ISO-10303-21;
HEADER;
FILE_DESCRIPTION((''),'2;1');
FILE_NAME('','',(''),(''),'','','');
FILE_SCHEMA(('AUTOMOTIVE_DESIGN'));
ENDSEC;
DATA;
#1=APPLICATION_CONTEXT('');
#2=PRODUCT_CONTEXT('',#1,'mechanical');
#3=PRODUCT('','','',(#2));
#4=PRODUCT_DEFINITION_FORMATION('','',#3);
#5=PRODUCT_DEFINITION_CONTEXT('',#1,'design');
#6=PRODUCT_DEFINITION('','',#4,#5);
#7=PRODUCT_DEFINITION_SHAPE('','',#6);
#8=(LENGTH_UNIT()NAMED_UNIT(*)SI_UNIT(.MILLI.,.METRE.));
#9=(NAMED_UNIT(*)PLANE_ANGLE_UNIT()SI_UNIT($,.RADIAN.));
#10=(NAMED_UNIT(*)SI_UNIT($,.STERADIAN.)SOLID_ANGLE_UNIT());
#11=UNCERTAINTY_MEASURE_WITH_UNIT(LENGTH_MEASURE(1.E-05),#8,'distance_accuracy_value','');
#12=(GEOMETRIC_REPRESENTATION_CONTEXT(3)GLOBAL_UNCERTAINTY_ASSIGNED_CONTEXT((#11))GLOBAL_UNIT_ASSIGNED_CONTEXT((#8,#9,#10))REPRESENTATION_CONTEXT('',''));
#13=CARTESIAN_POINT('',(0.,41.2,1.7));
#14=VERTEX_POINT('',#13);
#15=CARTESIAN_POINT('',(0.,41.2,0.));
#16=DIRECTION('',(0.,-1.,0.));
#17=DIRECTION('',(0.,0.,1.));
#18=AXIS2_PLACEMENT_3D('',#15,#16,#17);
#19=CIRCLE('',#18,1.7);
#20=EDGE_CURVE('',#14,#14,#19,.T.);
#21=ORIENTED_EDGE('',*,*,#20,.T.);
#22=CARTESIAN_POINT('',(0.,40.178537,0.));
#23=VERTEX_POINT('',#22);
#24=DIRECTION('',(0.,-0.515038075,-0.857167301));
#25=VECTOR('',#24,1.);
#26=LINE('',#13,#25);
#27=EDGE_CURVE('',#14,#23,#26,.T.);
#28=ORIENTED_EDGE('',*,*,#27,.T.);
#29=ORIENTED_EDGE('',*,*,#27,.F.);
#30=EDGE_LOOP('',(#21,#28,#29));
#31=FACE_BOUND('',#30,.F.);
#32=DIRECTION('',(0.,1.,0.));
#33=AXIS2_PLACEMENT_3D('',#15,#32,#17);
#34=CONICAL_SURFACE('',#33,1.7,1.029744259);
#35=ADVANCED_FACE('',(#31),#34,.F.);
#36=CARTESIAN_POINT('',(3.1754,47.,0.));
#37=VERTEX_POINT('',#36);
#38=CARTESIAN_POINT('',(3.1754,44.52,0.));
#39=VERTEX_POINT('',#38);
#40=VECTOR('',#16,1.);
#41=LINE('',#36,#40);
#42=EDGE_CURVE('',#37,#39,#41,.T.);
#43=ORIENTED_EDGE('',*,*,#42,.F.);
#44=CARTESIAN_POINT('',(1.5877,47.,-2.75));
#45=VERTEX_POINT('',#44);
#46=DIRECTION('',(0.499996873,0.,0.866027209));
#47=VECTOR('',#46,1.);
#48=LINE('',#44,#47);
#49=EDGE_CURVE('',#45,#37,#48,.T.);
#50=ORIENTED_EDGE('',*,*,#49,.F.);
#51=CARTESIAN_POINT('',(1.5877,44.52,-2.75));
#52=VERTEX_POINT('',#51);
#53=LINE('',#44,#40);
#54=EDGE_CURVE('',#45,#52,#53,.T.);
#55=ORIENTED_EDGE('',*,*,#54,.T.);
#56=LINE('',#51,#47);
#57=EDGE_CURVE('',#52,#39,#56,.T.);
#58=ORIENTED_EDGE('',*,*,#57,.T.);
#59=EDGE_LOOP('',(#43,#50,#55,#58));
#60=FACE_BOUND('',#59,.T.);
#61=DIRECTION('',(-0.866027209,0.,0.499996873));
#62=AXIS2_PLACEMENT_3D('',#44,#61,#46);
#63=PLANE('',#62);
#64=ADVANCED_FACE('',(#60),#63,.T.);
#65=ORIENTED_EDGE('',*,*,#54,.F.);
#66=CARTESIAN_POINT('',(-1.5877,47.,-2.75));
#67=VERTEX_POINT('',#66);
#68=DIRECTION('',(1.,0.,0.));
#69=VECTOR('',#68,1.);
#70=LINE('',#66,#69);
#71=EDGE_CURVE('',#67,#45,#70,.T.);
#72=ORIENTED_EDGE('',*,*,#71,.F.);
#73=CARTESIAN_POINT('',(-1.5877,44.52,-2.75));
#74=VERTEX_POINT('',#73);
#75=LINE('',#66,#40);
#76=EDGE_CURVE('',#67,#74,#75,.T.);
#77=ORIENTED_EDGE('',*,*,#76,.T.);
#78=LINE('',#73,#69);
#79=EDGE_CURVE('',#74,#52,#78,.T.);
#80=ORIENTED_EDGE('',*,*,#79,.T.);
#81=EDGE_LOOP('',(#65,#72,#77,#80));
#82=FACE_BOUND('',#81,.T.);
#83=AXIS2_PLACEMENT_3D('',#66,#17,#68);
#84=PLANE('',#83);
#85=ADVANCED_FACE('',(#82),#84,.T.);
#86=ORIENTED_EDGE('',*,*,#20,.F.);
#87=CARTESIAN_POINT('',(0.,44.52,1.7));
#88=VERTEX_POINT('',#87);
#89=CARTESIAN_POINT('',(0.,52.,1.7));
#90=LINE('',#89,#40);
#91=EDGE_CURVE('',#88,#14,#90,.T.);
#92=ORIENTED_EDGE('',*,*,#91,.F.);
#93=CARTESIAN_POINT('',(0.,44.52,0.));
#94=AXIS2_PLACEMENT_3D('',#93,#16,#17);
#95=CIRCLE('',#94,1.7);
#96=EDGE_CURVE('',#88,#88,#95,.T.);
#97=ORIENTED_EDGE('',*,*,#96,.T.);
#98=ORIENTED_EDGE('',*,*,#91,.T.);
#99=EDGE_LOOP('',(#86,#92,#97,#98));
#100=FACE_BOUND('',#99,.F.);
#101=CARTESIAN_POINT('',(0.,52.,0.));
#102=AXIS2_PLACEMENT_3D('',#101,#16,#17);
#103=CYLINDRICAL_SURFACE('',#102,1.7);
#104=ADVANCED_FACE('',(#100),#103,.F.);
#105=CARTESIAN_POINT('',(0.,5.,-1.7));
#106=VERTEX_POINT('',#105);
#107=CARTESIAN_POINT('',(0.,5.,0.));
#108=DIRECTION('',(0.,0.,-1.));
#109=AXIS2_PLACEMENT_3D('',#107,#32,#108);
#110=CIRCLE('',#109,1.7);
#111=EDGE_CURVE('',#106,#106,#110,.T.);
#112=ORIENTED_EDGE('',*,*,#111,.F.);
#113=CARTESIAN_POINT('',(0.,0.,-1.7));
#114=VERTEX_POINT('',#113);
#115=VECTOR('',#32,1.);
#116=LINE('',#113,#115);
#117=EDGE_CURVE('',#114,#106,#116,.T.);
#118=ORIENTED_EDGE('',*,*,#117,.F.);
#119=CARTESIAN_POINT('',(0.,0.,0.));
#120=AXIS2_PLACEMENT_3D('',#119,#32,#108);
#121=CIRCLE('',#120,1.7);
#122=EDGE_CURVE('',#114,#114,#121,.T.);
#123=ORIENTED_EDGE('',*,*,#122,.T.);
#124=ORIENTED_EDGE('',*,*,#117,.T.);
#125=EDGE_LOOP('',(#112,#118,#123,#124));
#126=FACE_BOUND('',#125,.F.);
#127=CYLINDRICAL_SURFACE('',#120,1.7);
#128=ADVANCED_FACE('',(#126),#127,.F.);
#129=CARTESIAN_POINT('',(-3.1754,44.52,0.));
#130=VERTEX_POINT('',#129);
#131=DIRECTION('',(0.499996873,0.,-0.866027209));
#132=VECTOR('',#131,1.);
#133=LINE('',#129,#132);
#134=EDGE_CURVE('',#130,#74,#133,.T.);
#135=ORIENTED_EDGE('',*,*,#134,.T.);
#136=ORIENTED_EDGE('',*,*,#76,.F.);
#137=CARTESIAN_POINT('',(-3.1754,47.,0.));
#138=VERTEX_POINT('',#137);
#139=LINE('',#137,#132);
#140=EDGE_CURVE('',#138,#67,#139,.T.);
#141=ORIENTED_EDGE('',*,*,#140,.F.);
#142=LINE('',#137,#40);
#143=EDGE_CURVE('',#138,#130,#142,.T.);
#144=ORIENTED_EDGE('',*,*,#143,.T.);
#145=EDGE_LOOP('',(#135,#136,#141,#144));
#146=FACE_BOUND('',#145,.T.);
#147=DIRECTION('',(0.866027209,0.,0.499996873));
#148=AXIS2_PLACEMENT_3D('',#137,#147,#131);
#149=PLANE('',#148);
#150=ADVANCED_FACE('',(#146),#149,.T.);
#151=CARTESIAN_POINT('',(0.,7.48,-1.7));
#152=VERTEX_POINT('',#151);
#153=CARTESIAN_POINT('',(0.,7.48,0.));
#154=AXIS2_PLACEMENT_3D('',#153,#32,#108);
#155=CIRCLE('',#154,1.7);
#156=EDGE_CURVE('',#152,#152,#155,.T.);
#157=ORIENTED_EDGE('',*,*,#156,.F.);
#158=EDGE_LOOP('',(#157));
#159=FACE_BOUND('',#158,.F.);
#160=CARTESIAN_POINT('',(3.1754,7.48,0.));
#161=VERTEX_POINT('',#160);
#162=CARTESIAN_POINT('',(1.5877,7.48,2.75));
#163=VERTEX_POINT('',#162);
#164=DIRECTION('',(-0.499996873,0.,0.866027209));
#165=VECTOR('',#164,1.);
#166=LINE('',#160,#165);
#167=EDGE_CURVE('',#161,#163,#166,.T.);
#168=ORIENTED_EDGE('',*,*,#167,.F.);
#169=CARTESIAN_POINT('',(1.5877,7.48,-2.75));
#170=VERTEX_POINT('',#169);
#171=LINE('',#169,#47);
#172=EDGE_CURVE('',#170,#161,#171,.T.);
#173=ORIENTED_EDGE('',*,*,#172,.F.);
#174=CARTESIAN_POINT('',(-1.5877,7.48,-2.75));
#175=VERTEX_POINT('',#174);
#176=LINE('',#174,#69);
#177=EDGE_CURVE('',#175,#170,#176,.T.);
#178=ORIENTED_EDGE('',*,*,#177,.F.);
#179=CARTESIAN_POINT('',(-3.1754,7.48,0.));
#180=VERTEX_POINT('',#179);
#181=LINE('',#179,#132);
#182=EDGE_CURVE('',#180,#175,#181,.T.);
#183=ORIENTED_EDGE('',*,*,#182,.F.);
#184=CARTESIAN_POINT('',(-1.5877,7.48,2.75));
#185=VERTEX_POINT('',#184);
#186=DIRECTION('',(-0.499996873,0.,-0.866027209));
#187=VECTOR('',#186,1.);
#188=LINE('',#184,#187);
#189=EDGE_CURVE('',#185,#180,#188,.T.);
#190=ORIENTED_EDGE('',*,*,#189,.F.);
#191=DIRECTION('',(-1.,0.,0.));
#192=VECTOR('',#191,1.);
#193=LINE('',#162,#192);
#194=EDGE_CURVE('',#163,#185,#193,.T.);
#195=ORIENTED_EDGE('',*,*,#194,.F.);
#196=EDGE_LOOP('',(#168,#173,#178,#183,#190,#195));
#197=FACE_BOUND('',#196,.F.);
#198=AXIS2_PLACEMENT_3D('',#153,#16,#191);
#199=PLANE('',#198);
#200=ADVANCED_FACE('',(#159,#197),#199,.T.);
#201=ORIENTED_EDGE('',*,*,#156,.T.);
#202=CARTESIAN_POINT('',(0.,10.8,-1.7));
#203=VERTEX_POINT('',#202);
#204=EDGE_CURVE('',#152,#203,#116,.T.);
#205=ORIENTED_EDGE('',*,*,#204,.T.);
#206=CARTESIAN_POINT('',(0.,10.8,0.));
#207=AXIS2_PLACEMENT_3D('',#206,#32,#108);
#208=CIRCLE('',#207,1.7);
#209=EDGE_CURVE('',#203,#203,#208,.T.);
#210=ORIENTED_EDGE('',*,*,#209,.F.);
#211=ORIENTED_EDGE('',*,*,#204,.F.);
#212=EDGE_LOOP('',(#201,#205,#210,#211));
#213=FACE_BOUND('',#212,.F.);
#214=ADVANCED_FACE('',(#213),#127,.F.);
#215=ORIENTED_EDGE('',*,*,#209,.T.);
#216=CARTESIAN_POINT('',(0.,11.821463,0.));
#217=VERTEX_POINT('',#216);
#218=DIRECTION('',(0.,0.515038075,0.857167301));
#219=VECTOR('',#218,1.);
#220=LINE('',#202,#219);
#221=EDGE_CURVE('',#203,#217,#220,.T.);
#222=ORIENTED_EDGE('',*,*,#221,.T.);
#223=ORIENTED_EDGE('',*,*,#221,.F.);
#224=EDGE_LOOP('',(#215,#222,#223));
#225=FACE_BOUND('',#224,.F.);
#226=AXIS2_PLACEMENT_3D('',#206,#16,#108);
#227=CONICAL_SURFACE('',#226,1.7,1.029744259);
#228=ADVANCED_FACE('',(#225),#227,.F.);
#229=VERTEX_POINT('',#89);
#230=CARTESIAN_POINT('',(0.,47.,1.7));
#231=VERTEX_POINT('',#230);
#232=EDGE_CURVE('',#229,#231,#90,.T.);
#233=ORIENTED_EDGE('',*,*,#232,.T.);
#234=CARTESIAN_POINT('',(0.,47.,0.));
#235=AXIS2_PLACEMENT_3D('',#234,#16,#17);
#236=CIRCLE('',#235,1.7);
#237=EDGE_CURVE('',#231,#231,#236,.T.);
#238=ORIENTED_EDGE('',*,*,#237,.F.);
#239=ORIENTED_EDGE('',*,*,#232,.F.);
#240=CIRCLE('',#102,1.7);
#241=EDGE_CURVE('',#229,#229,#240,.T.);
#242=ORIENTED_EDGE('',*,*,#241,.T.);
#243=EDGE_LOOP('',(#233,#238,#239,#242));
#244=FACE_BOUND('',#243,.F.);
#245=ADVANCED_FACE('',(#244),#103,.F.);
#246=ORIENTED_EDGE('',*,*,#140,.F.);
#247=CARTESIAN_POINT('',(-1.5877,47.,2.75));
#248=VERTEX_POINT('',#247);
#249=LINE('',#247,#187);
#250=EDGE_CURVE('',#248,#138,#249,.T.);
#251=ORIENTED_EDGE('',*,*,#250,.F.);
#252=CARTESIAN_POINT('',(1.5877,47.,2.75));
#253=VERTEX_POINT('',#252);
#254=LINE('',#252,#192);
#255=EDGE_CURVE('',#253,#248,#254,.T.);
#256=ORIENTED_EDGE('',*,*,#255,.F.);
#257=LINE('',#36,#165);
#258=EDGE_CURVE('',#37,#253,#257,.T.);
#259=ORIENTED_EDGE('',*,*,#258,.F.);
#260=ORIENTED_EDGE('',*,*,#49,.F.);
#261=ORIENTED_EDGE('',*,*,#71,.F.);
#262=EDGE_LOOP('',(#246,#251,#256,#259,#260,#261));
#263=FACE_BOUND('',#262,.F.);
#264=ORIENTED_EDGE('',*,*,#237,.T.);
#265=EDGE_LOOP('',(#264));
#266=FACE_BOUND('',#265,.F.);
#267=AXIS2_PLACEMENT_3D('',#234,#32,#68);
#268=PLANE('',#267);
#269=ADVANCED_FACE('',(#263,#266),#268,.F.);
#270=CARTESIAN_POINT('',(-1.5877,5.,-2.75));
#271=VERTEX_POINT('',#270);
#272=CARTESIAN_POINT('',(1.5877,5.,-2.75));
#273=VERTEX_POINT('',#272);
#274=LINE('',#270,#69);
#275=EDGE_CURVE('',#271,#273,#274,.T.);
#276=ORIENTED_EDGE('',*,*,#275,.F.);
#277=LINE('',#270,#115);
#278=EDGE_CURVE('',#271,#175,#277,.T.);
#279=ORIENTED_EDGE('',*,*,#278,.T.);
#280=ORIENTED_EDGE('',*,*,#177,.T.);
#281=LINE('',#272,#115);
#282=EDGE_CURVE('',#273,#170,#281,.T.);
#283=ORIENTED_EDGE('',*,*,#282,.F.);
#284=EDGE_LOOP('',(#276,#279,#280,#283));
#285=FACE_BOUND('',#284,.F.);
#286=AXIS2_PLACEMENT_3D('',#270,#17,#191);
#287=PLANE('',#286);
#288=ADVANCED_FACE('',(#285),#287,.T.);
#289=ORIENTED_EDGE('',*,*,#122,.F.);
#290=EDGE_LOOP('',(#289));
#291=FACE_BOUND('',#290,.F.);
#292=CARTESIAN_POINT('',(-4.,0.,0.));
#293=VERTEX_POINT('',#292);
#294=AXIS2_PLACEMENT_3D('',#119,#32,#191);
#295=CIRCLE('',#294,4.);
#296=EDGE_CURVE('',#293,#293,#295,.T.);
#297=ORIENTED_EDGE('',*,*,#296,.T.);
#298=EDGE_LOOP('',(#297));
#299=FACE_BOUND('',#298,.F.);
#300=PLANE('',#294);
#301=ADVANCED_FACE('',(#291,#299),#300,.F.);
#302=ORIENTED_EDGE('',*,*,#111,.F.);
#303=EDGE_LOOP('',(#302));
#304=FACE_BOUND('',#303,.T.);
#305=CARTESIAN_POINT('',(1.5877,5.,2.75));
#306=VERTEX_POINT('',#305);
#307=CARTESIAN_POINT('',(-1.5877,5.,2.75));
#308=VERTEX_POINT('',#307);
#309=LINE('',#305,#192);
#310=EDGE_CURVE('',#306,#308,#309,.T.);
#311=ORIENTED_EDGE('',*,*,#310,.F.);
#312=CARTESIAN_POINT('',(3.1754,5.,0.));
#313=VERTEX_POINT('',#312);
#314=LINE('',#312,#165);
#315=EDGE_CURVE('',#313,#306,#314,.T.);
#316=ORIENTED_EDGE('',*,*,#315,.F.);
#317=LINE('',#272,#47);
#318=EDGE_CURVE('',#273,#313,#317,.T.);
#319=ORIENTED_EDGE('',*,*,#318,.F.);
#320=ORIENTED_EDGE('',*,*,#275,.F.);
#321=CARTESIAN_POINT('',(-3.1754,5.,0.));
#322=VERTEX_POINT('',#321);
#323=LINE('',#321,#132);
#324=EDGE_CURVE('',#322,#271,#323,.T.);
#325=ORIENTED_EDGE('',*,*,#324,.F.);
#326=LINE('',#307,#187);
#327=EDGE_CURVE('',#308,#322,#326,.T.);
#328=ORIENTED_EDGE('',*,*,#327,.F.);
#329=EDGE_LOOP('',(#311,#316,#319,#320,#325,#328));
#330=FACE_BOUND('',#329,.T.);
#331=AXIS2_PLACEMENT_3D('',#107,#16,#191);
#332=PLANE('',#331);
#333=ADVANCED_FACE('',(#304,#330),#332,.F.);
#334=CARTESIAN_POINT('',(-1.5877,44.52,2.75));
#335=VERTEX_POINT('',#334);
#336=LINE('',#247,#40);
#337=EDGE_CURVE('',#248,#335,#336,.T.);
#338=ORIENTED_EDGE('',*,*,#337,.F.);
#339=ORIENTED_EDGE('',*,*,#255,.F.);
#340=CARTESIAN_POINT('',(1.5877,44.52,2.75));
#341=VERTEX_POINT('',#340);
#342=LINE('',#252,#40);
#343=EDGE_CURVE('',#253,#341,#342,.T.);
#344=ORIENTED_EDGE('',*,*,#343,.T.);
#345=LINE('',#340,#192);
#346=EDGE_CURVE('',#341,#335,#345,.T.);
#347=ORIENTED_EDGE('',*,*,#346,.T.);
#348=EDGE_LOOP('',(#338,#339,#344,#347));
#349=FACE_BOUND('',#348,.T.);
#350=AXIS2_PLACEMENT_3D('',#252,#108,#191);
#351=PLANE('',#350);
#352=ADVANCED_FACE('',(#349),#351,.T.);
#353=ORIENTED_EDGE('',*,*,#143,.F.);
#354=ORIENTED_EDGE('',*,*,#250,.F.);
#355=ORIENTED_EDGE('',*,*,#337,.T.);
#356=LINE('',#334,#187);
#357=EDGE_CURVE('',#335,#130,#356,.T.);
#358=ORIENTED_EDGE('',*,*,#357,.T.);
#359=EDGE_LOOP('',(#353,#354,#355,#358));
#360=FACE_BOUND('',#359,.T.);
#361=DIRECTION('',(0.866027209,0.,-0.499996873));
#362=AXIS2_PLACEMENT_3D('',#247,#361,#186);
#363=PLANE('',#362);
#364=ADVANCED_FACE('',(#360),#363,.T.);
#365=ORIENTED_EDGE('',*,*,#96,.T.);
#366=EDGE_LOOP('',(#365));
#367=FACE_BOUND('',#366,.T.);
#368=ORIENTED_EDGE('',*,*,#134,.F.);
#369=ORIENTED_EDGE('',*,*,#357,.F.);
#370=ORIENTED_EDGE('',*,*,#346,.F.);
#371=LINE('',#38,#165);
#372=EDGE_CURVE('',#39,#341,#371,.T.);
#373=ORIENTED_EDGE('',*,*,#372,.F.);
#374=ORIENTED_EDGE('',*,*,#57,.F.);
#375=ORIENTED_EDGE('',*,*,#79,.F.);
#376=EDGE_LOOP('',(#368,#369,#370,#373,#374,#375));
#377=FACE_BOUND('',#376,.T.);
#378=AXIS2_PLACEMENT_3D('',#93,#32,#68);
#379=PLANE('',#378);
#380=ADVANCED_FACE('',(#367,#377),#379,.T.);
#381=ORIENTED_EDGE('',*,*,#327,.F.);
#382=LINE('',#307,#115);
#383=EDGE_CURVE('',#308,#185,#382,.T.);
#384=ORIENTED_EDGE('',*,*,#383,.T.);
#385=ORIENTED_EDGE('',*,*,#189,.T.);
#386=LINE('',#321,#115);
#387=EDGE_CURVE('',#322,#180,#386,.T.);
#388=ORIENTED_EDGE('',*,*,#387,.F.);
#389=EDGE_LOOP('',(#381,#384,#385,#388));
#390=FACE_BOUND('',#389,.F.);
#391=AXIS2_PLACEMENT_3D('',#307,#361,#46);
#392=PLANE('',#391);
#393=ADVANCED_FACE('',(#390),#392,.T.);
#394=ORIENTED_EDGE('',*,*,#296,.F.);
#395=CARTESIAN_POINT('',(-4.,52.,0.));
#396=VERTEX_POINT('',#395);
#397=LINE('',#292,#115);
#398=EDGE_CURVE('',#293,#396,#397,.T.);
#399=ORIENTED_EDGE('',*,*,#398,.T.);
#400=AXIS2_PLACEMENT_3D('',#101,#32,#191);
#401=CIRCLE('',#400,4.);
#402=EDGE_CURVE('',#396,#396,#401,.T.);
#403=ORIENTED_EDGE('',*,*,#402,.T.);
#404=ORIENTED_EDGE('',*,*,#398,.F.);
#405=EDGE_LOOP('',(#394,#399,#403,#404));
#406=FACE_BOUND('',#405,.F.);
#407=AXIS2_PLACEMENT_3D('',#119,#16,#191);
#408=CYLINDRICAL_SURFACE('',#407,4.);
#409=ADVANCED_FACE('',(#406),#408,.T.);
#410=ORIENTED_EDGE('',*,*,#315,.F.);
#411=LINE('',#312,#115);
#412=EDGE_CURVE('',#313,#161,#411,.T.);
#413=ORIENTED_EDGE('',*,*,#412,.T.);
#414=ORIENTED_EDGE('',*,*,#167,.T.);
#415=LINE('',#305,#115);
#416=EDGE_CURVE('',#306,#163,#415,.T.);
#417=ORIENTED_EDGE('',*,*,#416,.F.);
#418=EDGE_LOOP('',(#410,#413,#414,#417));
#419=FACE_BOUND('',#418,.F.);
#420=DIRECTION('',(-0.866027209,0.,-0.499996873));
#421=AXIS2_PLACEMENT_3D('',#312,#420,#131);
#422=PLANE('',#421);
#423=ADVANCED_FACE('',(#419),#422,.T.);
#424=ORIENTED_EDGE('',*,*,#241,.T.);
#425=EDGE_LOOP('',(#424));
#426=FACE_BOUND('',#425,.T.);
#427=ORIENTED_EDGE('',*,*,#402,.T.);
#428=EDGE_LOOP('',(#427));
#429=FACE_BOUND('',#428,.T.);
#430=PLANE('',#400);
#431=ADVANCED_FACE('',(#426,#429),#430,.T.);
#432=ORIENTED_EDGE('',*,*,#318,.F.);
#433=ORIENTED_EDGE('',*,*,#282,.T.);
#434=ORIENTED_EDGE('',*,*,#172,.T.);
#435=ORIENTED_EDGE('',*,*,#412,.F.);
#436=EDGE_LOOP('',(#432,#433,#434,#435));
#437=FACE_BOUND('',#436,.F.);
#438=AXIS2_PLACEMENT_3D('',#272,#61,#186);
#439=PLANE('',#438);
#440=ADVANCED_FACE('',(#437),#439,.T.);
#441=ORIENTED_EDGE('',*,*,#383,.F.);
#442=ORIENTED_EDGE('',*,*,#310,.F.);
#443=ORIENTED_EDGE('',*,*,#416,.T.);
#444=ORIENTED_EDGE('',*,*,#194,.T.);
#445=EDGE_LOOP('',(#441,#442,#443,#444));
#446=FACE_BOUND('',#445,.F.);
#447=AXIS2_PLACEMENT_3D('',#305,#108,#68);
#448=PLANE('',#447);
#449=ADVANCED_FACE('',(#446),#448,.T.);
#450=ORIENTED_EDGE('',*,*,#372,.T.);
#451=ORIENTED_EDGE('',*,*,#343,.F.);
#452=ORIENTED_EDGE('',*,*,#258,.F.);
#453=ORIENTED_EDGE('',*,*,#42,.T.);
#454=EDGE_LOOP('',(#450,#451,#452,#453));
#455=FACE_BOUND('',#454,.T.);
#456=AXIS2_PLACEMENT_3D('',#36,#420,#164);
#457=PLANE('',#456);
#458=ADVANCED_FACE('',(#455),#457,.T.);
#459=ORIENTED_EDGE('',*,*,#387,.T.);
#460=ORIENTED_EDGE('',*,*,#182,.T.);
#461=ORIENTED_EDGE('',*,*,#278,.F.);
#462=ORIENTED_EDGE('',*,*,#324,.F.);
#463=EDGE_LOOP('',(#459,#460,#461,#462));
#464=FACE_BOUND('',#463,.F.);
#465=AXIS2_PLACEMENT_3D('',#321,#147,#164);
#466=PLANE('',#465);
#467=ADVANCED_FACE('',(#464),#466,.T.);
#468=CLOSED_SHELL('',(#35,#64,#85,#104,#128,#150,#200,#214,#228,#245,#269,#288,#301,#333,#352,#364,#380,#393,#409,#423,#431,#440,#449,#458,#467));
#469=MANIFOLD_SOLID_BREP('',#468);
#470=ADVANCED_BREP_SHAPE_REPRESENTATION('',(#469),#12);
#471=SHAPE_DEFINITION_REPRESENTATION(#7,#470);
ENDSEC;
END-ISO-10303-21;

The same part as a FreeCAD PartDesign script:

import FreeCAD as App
import Part
import Sketcher
Q = App.Units.Quantity


def add_polygon(sketch, points):
    """Adds a closed chain of lines whose ends are joined by coincident constraints."""
    first, n = sketch.GeometryCount, len(points)
    for a, b in zip(points, points[1:] + points[:1]):
        sketch.addGeometry(Part.LineSegment(App.Vector(*a, 0), App.Vector(*b, 0)), False)
    for i in range(n):
        sketch.addConstraint(Sketcher.Constraint("Coincident", first + i, 2, first + (i + 1) % n, 1))

doc = App.newDocument("Part")
params = doc.addObject("Spreadsheet::Sheet", "Params")
for row, (alias, value) in enumerate([
    ("sketch1_diameter", "8 mm"),
    ("pad1_length", "52 mm"),
    ("sketch2_diameter", "3.4 mm"),
    ("hole_diameter", "3.4 mm"),
    ("hole_depth", "10.8 mm"),
    ("sketch3_diameter", "3.4 mm"),
    ("hole2_diameter", "3.4 mm"),
    ("hole2_depth", "10.8 mm"),
    ("pocket1_length", "2.48 mm"),
], start=1):
    params.set(f"A{row}", alias)
    params.set(f"B{row}", "=" + value)
    params.setAlias(f"B{row}", alias)

body = doc.addObject("PartDesign::Body", "Body")

# Sketch on XZ plane
sketch1 = doc.addObject("Sketcher::SketchObject", "Sketch")
body.addObject(sketch1)
sketch1.AttachmentSupport = (doc.XZ_Plane, [""])
sketch1.MapMode = "FlatFace"
sketch1.addGeometry(Part.Circle(App.Vector(0, 0, 0), App.Vector(0, 0, 1), 4), False)
sketch1.addConstraint([
    Sketcher.Constraint("Coincident", 0, 3, -1, 1),
    Sketcher.Constraint("Diameter", 0, 8.0),
])
sketch1.setExpression("Constraints[1]", "Params.sketch1_diameter")
pad1 = doc.addObject("PartDesign::Pad", "Pad")
body.addObject(pad1)
pad1.Profile = sketch1
pad1.setExpression("Length", "Params.pad1_length")
pad1.Reversed = True

# Sketch on XZ plane
sketch2 = doc.addObject("Sketcher::SketchObject", "Sketch001")
body.addObject(sketch2)
sketch2.AttachmentSupport = (doc.XZ_Plane, [""])
sketch2.MapMode = "FlatFace"
sketch2.AttachmentOffset = App.Placement(App.Vector(0, 0, -52), App.Rotation())
sketch2.addGeometry(Part.Circle(App.Vector(0, 0, 0), App.Vector(0, 0, 1), 1.7), False)
sketch2.addConstraint([
    Sketcher.Constraint("Coincident", 0, 3, -1, 1),
    Sketcher.Constraint("Diameter", 0, 3.4),
])
sketch2.setExpression("Constraints[1]", "Params.sketch2_diameter")
doc.recompute()
hole = doc.addObject("PartDesign::Hole", "Hole")
body.addObject(hole)
hole.Profile = sketch2
hole.ThreadType = "None"
hole.setExpression("Diameter", "Params.hole_diameter")
hole.DepthType = "Dimension"
hole.setExpression("Depth", "Params.hole_depth")
hole.DrillPoint = "Angled"
hole.DrillPointAngle = 118
hole.Reversed = True

# Sketch on XZ plane
sketch3 = doc.addObject("Sketcher::SketchObject", "Sketch002")
body.addObject(sketch3)
sketch3.AttachmentSupport = (doc.XZ_Plane, [""])
sketch3.MapMode = "FlatFace"
sketch3.addGeometry(Part.Circle(App.Vector(0, 0, 0), App.Vector(0, 0, 1), 1.7), False)
sketch3.addConstraint([
    Sketcher.Constraint("Coincident", 0, 3, -1, 1),
    Sketcher.Constraint("Diameter", 0, 3.4),
])
sketch3.setExpression("Constraints[1]", "Params.sketch3_diameter")
doc.recompute()
hole2 = doc.addObject("PartDesign::Hole", "Hole001")
body.addObject(hole2)
hole2.Profile = sketch3
hole2.ThreadType = "None"
hole2.setExpression("Diameter", "Params.hole2_diameter")
hole2.DepthType = "Dimension"
hole2.setExpression("Depth", "Params.hole2_depth")
hole2.DrillPoint = "Angled"
hole2.DrillPointAngle = 118

# Sketch on XZ plane
sketch4 = doc.addObject("Sketcher::SketchObject", "Sketch003")
body.addObject(sketch4)
sketch4.AttachmentSupport = (doc.XZ_Plane, [""])
sketch4.MapMode = "FlatFace"
sketch4.AttachmentOffset = App.Placement(App.Vector(0, 0, -47), App.Rotation())
add_polygon(sketch4, [(3.2, 0), (1.6, -2.8), (-1.6, -2.8), (-3.2, 0), (-1.6, 2.8), (1.6, 2.8)])  # lines 0-5
sketch4.addConstraint([
    Sketcher.Constraint("Horizontal", 1),
    Sketcher.Constraint("Horizontal", 4),
    Sketcher.Constraint("Symmetric", 0, 2, 3, 2, -1, 1),
    Sketcher.Constraint("Symmetric", 2, 2, 5, 2, -1, 1),
    Sketcher.Constraint("PointOnObject", 2, 2, -1),
    Sketcher.Constraint("Parallel", 2, 5),
    Sketcher.Constraint("Vertical", 1, 2, 3, 2),
    Sketcher.Constraint("DistanceY", 1, 2, 3, 2, 5.5),
    Sketcher.Constraint("Angle", 0, Q("-119.9998 deg")),
    Sketcher.Constraint("DistanceX", 1, 2, 1, 1, 3.1754),
])
pocket1 = doc.addObject("PartDesign::Pocket", "Pocket")
body.addObject(pocket1)
pocket1.Profile = sketch4
pocket1.setExpression("Length", "Params.pocket1_length")
pocket1.Reversed = True
doc.recompute()

datumplane = doc.addObject("PartDesign::Plane", "DatumPlane")
body.addObject(datumplane)
datumplane.AttachmentSupport = (doc.XZ_Plane, [""])
datumplane.MapMode = "FlatFace"
datumplane.AttachmentOffset = App.Placement(App.Vector(0, 0, -26), App.Rotation())
mirrored = doc.addObject("PartDesign::Mirrored", "Mirrored")
body.addObject(mirrored)
mirrored.Originals = [pocket1]
mirrored.MirrorPlane = (datumplane, [""])
body.Tip = mirrored

doc.recompute()
